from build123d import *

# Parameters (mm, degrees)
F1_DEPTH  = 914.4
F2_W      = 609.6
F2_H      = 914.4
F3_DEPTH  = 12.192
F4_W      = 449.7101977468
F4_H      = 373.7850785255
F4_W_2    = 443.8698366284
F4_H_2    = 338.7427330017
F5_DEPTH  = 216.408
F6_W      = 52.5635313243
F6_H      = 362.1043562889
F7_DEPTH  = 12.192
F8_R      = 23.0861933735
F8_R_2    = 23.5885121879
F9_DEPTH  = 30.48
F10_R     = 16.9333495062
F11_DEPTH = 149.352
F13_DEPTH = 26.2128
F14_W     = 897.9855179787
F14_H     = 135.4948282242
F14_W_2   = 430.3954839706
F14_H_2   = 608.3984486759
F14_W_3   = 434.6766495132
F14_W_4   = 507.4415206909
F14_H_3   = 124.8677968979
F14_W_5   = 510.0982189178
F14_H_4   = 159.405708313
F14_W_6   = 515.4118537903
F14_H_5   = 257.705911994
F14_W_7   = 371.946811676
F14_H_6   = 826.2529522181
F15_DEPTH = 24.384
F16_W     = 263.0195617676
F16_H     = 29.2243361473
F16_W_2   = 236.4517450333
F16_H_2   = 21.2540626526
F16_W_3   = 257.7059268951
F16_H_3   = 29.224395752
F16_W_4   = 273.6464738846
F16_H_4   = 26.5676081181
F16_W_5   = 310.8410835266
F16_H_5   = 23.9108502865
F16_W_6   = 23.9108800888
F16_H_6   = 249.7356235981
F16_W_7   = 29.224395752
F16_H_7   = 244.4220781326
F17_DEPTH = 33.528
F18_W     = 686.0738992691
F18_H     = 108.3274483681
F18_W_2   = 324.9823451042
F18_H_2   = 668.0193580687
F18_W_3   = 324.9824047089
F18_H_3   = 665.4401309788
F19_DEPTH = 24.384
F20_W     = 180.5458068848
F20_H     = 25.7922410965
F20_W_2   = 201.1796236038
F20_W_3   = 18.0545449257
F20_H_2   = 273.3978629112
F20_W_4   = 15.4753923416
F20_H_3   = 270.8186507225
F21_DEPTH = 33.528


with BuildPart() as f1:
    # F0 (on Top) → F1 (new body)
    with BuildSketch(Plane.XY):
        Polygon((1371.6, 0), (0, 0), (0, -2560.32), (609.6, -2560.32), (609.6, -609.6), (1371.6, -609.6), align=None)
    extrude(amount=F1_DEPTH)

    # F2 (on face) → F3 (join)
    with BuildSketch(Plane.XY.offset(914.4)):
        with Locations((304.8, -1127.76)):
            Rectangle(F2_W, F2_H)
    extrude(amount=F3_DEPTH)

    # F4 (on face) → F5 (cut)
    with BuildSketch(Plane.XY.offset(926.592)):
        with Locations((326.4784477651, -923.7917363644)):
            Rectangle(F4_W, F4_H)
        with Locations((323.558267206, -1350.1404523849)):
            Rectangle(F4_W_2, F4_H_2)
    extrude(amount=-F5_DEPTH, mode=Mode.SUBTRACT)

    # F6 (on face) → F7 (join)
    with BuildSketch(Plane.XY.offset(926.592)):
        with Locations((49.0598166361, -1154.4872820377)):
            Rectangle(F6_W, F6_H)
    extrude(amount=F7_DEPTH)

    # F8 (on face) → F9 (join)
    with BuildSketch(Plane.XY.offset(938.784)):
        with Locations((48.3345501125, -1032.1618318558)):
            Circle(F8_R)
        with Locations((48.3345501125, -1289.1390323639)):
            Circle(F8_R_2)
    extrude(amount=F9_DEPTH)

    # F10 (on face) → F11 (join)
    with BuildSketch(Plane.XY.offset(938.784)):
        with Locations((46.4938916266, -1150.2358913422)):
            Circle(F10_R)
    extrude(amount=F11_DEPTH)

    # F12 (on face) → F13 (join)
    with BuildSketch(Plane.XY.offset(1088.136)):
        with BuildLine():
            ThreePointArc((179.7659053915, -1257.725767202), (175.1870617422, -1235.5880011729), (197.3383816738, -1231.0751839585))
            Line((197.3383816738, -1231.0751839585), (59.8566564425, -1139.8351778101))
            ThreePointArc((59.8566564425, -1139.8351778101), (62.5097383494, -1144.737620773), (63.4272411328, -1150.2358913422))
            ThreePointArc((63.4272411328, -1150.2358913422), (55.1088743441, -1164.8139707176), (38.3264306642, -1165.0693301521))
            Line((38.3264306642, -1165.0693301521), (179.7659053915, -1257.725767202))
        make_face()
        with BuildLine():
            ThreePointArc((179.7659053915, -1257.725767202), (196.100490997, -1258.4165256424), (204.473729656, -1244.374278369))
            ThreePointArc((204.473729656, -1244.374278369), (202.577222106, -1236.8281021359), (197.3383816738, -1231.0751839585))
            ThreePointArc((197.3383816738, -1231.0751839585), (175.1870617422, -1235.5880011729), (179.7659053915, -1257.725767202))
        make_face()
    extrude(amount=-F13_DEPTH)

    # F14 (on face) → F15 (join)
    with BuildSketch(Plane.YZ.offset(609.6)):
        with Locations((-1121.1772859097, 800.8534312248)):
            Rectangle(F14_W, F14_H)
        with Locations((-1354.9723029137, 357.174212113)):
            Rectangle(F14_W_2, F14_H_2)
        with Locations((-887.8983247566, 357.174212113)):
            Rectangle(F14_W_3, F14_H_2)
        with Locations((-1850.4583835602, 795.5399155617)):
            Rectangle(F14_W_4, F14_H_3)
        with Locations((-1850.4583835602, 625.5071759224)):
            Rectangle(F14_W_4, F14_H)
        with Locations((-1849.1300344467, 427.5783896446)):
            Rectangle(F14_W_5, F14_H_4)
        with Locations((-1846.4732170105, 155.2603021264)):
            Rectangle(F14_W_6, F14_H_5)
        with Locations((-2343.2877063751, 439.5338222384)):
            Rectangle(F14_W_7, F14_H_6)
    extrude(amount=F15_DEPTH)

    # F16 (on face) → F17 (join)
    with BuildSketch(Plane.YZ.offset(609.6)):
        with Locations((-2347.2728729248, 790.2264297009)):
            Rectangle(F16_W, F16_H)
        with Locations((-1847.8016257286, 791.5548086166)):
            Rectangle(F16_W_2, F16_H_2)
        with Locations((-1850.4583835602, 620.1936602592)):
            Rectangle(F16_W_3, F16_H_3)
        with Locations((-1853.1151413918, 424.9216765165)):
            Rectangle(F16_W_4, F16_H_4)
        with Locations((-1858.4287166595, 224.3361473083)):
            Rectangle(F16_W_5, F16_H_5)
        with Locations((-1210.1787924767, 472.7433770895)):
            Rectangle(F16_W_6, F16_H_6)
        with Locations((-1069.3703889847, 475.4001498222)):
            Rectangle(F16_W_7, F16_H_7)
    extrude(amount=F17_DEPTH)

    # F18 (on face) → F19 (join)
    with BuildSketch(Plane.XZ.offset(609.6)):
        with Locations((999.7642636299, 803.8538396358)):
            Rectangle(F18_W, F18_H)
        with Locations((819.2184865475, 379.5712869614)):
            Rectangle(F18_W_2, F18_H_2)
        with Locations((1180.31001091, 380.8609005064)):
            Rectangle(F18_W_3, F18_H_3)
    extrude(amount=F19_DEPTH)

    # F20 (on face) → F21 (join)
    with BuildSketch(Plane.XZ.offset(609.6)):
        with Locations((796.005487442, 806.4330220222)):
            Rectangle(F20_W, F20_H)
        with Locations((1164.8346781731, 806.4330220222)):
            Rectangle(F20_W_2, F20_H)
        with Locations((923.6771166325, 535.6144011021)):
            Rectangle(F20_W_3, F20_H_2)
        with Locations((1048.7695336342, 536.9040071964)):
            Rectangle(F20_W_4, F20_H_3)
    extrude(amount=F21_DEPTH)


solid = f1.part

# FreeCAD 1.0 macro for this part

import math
import FreeCAD as App
import Part
import Sketcher
from FreeCAD import Vector
Q = App.Units.Quantity

doc = App.newDocument("Part")
body = doc.addObject("PartDesign::Body", "Body")

# Sketch on XY plane
sketch1 = body.newObject("Sketcher::SketchObject", "Sketch")
sketch1.AttachmentSupport = (doc.getObject("XY_Plane"), [""])
sketch1.MapMode = "FlatFace"
sketch1.addGeometry(Part.LineSegment(Vector(1371.6, 0, 0), Vector(0, 0, 0)), False)
sketch1.addGeometry(Part.LineSegment(Vector(0, 0, 0), Vector(0, -2560.32, 0)), False)
sketch1.addGeometry(Part.LineSegment(Vector(0, -2560.32, 0), Vector(609.6, -2560.32, 0)), False)
sketch1.addGeometry(Part.LineSegment(Vector(609.6, -2560.32, 0), Vector(609.6, -609.6, 0)), False)
sketch1.addGeometry(Part.LineSegment(Vector(609.6, -609.6, 0), Vector(1371.6, -609.6, 0)), False)
sketch1.addGeometry(Part.LineSegment(Vector(1371.6, -609.6, 0), Vector(1371.6, 0, 0)), False)
sketch1.addConstraint(Sketcher.Constraint("Coincident", 0, 2, 1, 1))
sketch1.addConstraint(Sketcher.Constraint("Coincident", 1, 2, 2, 1))
sketch1.addConstraint(Sketcher.Constraint("Coincident", 2, 2, 3, 1))
sketch1.addConstraint(Sketcher.Constraint("Coincident", 3, 2, 4, 1))
sketch1.addConstraint(Sketcher.Constraint("Coincident", 4, 2, 5, 1))
sketch1.addConstraint(Sketcher.Constraint("Coincident", 5, 2, 0, 1))
sketch1.addConstraint(Sketcher.Constraint("Horizontal", 0))
sketch1.addConstraint(Sketcher.Constraint("Vertical", 1))
sketch1.addConstraint(Sketcher.Constraint("Horizontal", 2))
sketch1.addConstraint(Sketcher.Constraint("Vertical", 3))
sketch1.addConstraint(Sketcher.Constraint("Horizontal", 4))
sketch1.addConstraint(Sketcher.Constraint("Vertical", 5))
sketch1.addConstraint(Sketcher.Constraint("Coincident", 0, 2, -1, 1))
sketch1.addConstraint(Sketcher.Constraint("Equal", 2, 5))
sketch1.addConstraint(Sketcher.Constraint("DistanceX", 0, 2, 0, 1, Q("54 in")))
sketch1.addConstraint(Sketcher.Constraint("DistanceX", 2, 1, 2, 2, Q("24 in")))
sketch1.addConstraint(Sketcher.Constraint("DistanceY", 1, 2, 1, 1, Q("100.8 in")))
pad1 = body.newObject("PartDesign::Pad", "Pad")
pad1.Profile = sketch1
pad1.Length = Q("36 in")

# Sketch on XY plane
sketch2 = body.newObject("Sketcher::SketchObject", "Sketch001")
sketch2.AttachmentSupport = (doc.getObject("XY_Plane"), [""])
sketch2.MapMode = "FlatFace"
sketch2.AttachmentOffset = App.Placement(Vector(0, 0, 36 * 25.4), App.Rotation())
sketch2.addGeometry(Part.LineSegment(Vector(0, -670.56, 0), Vector(0, -1584.96, 0)), False)
sketch2.addGeometry(Part.LineSegment(Vector(0, -1584.96, 0), Vector(609.6, -1584.96, 0)), False)
sketch2.addGeometry(Part.LineSegment(Vector(609.6, -1584.96, 0), Vector(609.6, -670.56, 0)), False)
sketch2.addGeometry(Part.LineSegment(Vector(609.6, -670.56, 0), Vector(0, -670.56, 0)), False)
sketch2.addConstraint(Sketcher.Constraint("Coincident", 0, 2, 1, 1))
sketch2.addConstraint(Sketcher.Constraint("Coincident", 1, 2, 2, 1))
sketch2.addConstraint(Sketcher.Constraint("Coincident", 2, 2, 3, 1))
sketch2.addConstraint(Sketcher.Constraint("Coincident", 3, 2, 0, 1))
sketch2.addConstraint(Sketcher.Constraint("Vertical", 0))
sketch2.addConstraint(Sketcher.Constraint("Horizontal", 1))
sketch2.addConstraint(Sketcher.Constraint("Vertical", 2))
sketch2.addConstraint(Sketcher.Constraint("Horizontal", 3))
sketch2.addConstraint(Sketcher.Constraint("PointOnObject", 0, 2, -2))
sketch2.addConstraint(Sketcher.Constraint("DistanceX", 1, 1, 1, 2, Q("24 in")))
sketch2.addConstraint(Sketcher.Constraint("DistanceY", 0, 2, 0, 1, Q("36 in")))
sketch2.addConstraint(Sketcher.Constraint("DistanceY", 0, 2, -1, 1, Q("62.4 in")))
pad2 = body.newObject("PartDesign::Pad", "Pad001")
pad2.Profile = sketch2
pad2.Length = Q("0.48 in")

# Sketch on XY plane
sketch3 = body.newObject("Sketcher::SketchObject", "Sketch002")
sketch3.AttachmentSupport = (doc.getObject("XY_Plane"), [""])
sketch3.MapMode = "FlatFace"
sketch3.AttachmentOffset = App.Placement(Vector(0, 0, 36.48 * 25.4), App.Rotation())
sketch3.addGeometry(Part.LineSegment(Vector(101.623349, -736.899197, 0), Vector(101.623349, -1110.684276, 0)), False)
sketch3.addGeometry(Part.LineSegment(Vector(101.623349, -1110.684276, 0), Vector(551.333547, -1110.684276, 0)), False)
sketch3.addGeometry(Part.LineSegment(Vector(551.333547, -1110.684276, 0), Vector(551.333547, -736.899197, 0)), False)
sketch3.addGeometry(Part.LineSegment(Vector(551.333547, -736.899197, 0), Vector(101.623349, -736.899197, 0)), False)
sketch3.addGeometry(Part.LineSegment(Vector(101.623349, -1180.769086, 0), Vector(101.623349, -1519.511819, 0)), False)
sketch3.addGeometry(Part.LineSegment(Vector(101.623349, -1519.511819, 0), Vector(545.493186, -1519.511819, 0)), False)
sketch3.addGeometry(Part.LineSegment(Vector(545.493186, -1519.511819, 0), Vector(545.493186, -1180.769086, 0)), False)
sketch3.addGeometry(Part.LineSegment(Vector(545.493186, -1180.769086, 0), Vector(101.623349, -1180.769086, 0)), False)
sketch3.addConstraint(Sketcher.Constraint("Coincident", 0, 2, 1, 1))
sketch3.addConstraint(Sketcher.Constraint("Coincident", 1, 2, 2, 1))
sketch3.addConstraint(Sketcher.Constraint("Coincident", 2, 2, 3, 1))
sketch3.addConstraint(Sketcher.Constraint("Coincident", 3, 2, 0, 1))
sketch3.addConstraint(Sketcher.Constraint("Coincident", 4, 2, 5, 1))
sketch3.addConstraint(Sketcher.Constraint("Coincident", 5, 2, 6, 1))
sketch3.addConstraint(Sketcher.Constraint("Coincident", 6, 2, 7, 1))
sketch3.addConstraint(Sketcher.Constraint("Coincident", 7, 2, 4, 1))
sketch3.addConstraint(Sketcher.Constraint("Vertical", 0))
sketch3.addConstraint(Sketcher.Constraint("Horizontal", 1))
sketch3.addConstraint(Sketcher.Constraint("Vertical", 2))
sketch3.addConstraint(Sketcher.Constraint("Horizontal", 3))
sketch3.addConstraint(Sketcher.Constraint("Vertical", 4))
sketch3.addConstraint(Sketcher.Constraint("Horizontal", 5))
sketch3.addConstraint(Sketcher.Constraint("Vertical", 6))
sketch3.addConstraint(Sketcher.Constraint("Horizontal", 7))
sketch3.addConstraint(Sketcher.Constraint("Vertical", 3, 2, 4, 2))
sketch3.addConstraint(Sketcher.Constraint("DistanceY", 4, 2, -1, 1, Q("59.8233 in")))
sketch3.addConstraint(Sketcher.Constraint("DistanceY", 0, 2, 0, 1, 373.785079))
sketch3.addConstraint(Sketcher.Constraint("DistanceX", 1, 1, 1, 2, 449.710198))
sketch3.addConstraint(Sketcher.Constraint("DistanceX", 5, 1, 5, 2, 443.869837))
sketch3.addConstraint(Sketcher.Constraint("DistanceY", 4, 2, 4, 1, 338.742733))
sketch3.addConstraint(Sketcher.Constraint("DistanceX", -1, 1, 0, 2, 101.623349))
sketch3.addConstraint(Sketcher.Constraint("DistanceY", 4, 2, 3, 2, 782.612622))
pocket1 = body.newObject("PartDesign::Pocket", "Pocket")
pocket1.Profile = sketch3
pocket1.Length = Q("8.52 in")

# Sketch on XY plane
sketch4 = body.newObject("Sketcher::SketchObject", "Sketch003")
sketch4.AttachmentSupport = (doc.getObject("XY_Plane"), [""])
sketch4.MapMode = "FlatFace"
sketch4.AttachmentOffset = App.Placement(Vector(0, 0, 36.48 * 25.4), App.Rotation())
sketch4.addGeometry(Part.LineSegment(Vector(22.778051, -973.435104, 0), Vector(22.778051, -1335.53946, 0)), False)
sketch4.addGeometry(Part.LineSegment(Vector(22.778051, -1335.53946, 0), Vector(75.341582, -1335.53946, 0)), False)
sketch4.addGeometry(Part.LineSegment(Vector(75.341582, -1335.53946, 0), Vector(75.341582, -973.435104, 0)), False)
sketch4.addGeometry(Part.LineSegment(Vector(75.341582, -973.435104, 0), Vector(22.778051, -973.435104, 0)), False)
sketch4.addConstraint(Sketcher.Constraint("Coincident", 0, 2, 1, 1))
sketch4.addConstraint(Sketcher.Constraint("Coincident", 1, 2, 2, 1))
sketch4.addConstraint(Sketcher.Constraint("Coincident", 2, 2, 3, 1))
sketch4.addConstraint(Sketcher.Constraint("Coincident", 3, 2, 0, 1))
sketch4.addConstraint(Sketcher.Constraint("Vertical", 0))
sketch4.addConstraint(Sketcher.Constraint("Horizontal", 1))
sketch4.addConstraint(Sketcher.Constraint("Vertical", 2))
sketch4.addConstraint(Sketcher.Constraint("Horizontal", 3))
sketch4.addConstraint(Sketcher.Constraint("DistanceX", 1, 1, 1, 2, 52.563531))
sketch4.addConstraint(Sketcher.Constraint("DistanceY", 0, 2, 0, 1, 362.104356))
sketch4.addConstraint(Sketcher.Constraint("DistanceX", -1, 1, 0, 2, 22.778051))
sketch4.addConstraint(Sketcher.Constraint("DistanceY", 0, 2, -1, 1, 1335.53946))
pad3 = body.newObject("PartDesign::Pad", "Pad002")
pad3.Profile = sketch4
pad3.Length = Q("0.48 in")

# Sketch on XY plane
sketch5 = body.newObject("Sketcher::SketchObject", "Sketch004")
sketch5.AttachmentSupport = (doc.getObject("XY_Plane"), [""])
sketch5.MapMode = "FlatFace"
sketch5.AttachmentOffset = App.Placement(Vector(0, 0, 36.96 * 25.4), App.Rotation())
sketch5.addGeometry(Part.Circle(Vector(48.33455, -1032.161832, 0), Vector(0, 0, 1), 23.086193), False)
sketch5.addGeometry(Part.Circle(Vector(48.33455, -1289.139032, 0), Vector(0, 0, 1), 23.588512), False)
sketch5.addConstraint(Sketcher.Constraint("Vertical", 0, 3, 1, 3))
sketch5.addConstraint(Sketcher.Constraint("Diameter", 0, 46.172387))
sketch5.addConstraint(Sketcher.Constraint("Diameter", 1, 47.177024))
sketch5.addConstraint(Sketcher.Constraint("DistanceY", 1, 3, 0, 3, 256.977201))
sketch5.addConstraint(Sketcher.Constraint("DistanceX", -1, 1, 0, 3, 48.33455))
sketch5.addConstraint(Sketcher.Constraint("DistanceY", 0, 3, -1, 1, 1032.161832))
pad4 = body.newObject("PartDesign::Pad", "Pad003")
pad4.Profile = sketch5
pad4.Length = Q("1.2 in")

# Sketch on XY plane
sketch6 = body.newObject("Sketcher::SketchObject", "Sketch005")
sketch6.AttachmentSupport = (doc.getObject("XY_Plane"), [""])
sketch6.MapMode = "FlatFace"
sketch6.AttachmentOffset = App.Placement(Vector(0, 0, 36.96 * 25.4), App.Rotation())
sketch6.addGeometry(Part.Circle(Vector(46.493892, -1150.235891, 0), Vector(0, 0, 1), 16.93335), False)
sketch6.addConstraint(Sketcher.Constraint("Diameter", 0, 33.866699))
sketch6.addConstraint(Sketcher.Constraint("DistanceX", -1, 1, 0, 3, 46.493892))
sketch6.addConstraint(Sketcher.Constraint("DistanceY", 0, 3, -1, 1, 1150.235891))
pad5 = body.newObject("PartDesign::Pad", "Pad004")
pad5.Profile = sketch6
pad5.Length = Q("5.88 in")

# Sketch on XY plane
sketch7 = body.newObject("Sketcher::SketchObject", "Sketch006")
sketch7.AttachmentSupport = (doc.getObject("XY_Plane"), [""])
sketch7.MapMode = "FlatFace"
sketch7.AttachmentOffset = App.Placement(Vector(0, 0, 42.84 * 25.4), App.Rotation())
sketch7.addGeometry(Part.LineSegment(Vector(197.338382, -1231.075184, 0), Vector(59.856656, -1139.835178, 0)), False)
sketch7.addGeometry(Part.ArcOfCircle(Part.Circle(Vector(46.493892, -1150.235891, 0), Vector(0, 0, 1), 16.93335), math.radians(0), math.radians(37.894887)), False)
sketch7.addGeometry(Part.ArcOfCircle(Part.Circle(Vector(46.493892, -1150.235891, 0), Vector(0, 0, 1), 16.93335), math.radians(-118.837683), math.radians(0)), False)
sketch7.addGeometry(Part.LineSegment(Vector(38.326431, -1165.06933, 0), Vector(179.765905, -1257.725767, 0)), False)
sketch7.addGeometry(Part.ArcOfCircle(Part.Circle(Vector(188.512413, -1244.374278, 0), Vector(0, 0, 1), 15.961317), math.radians(-123.228649), math.radians(0)), False)
sketch7.addGeometry(Part.ArcOfCircle(Part.Circle(Vector(188.512413, -1244.374278, 0), Vector(0, 0, 1), 15.961317), math.radians(0), math.radians(56.429684)), False)
sketch7.addConstraint(Sketcher.Constraint("Coincident", 0, 2, 1, 2))
sketch7.addConstraint(Sketcher.Constraint("Tangent", 1, 1, 2, 2))
sketch7.addConstraint(Sketcher.Constraint("Coincident", 2, 1, 3, 1))
sketch7.addConstraint(Sketcher.Constraint("Tangent", 3, 2, 4, 1))
sketch7.addConstraint(Sketcher.Constraint("Tangent", 4, 2, 5, 1))
sketch7.addConstraint(Sketcher.Constraint("Tangent", 5, 2, 0, 1))
sketch7.addConstraint(Sketcher.Constraint("Equal", 1, 2))
sketch7.addConstraint(Sketcher.Constraint("Equal", 4, 5))
sketch7.addConstraint(Sketcher.Constraint("Horizontal", 2, 3, 1, 1))
sketch7.addConstraint(Sketcher.Constraint("Horizontal", 5, 3, 4, 2))
sketch7.addConstraint(Sketcher.Constraint("Radius", 1, 16.93335))
sketch7.addConstraint(Sketcher.Constraint("Radius", 4, 15.961317))
sketch7.addConstraint(Sketcher.Constraint("DistanceY", 4, 3, 0, 2, 104.539101))
sketch7.addConstraint(Sketcher.Constraint("Distance", 0, 165.00292))
sketch7.addConstraint(Sketcher.Constraint("DistanceX", -1, 1, 1, 3, 46.493892))
sketch7.addConstraint(Sketcher.Constraint("DistanceY", 1, 3, -1, 1, 1150.235891))
sketch7.addConstraint(Sketcher.Constraint("DistanceY", 4, 3, -1, 1, 1244.374278))
sketch7.addConstraint(Sketcher.Constraint("DistanceX", -1, 1, 2, 1, 38.326431))
pad6 = body.newObject("PartDesign::Pad", "Pad005")
pad6.Profile = sketch7
pad6.Length = Q("1.032 in")
pad6.Reversed = True

# Sketch on YZ plane
sketch8 = body.newObject("Sketcher::SketchObject", "Sketch007")
sketch8.AttachmentSupport = (doc.getObject("YZ_Plane"), [""])
sketch8.MapMode = "FlatFace"
sketch8.AttachmentOffset = App.Placement(Vector(0, 0, 24 * 25.4), App.Rotation())
sketch8.addGeometry(Part.LineSegment(Vector(-1570.170045, 868.600845, 0), Vector(-1570.170045, 733.106017, 0)), False)
sketch8.addGeometry(Part.LineSegment(Vector(-1570.170045, 733.106017, 0), Vector(-672.184527, 733.106017, 0)), False)
sketch8.addGeometry(Part.LineSegment(Vector(-672.184527, 733.106017, 0), Vector(-672.184527, 868.600845, 0)), False)
sketch8.addGeometry(Part.LineSegment(Vector(-672.184527, 868.600845, 0), Vector(-1570.170045, 868.600845, 0)), False)
sketch8.addGeometry(Part.LineSegment(Vector(-1570.170045, 661.373436, 0), Vector(-1570.170045, 52.974988, 0)), False)
sketch8.addGeometry(Part.LineSegment(Vector(-1570.170045, 52.974988, 0), Vector(-1139.774561, 52.974988, 0)), False)
sketch8.addGeometry(Part.LineSegment(Vector(-1139.774561, 52.974988, 0), Vector(-1139.774561, 661.373436, 0)), False)
sketch8.addGeometry(Part.LineSegment(Vector(-1139.774561, 661.373436, 0), Vector(-1570.170045, 661.373436, 0)), False)
sketch8.addGeometry(Part.LineSegment(Vector(-1105.23665, 661.373436, 0), Vector(-1105.23665, 52.974988, 0)), False)
sketch8.addGeometry(Part.LineSegment(Vector(-1105.23665, 52.974988, 0), Vector(-670.56, 52.974988, 0)), False)
sketch8.addGeometry(Part.LineSegment(Vector(-670.56, 52.974988, 0), Vector(-670.56, 661.373436, 0)), False)
sketch8.addGeometry(Part.LineSegment(Vector(-670.56, 661.373436, 0), Vector(-1105.23665, 661.373436, 0)), False)
sketch8.addGeometry(Part.LineSegment(Vector(-2104.179144, 857.973814, 0), Vector(-2104.179144, 733.106017, 0)), False)
sketch8.addGeometry(Part.LineSegment(Vector(-2104.179144, 733.106017, 0), Vector(-1596.737623, 733.106017, 0)), False)
sketch8.addGeometry(Part.LineSegment(Vector(-1596.737623, 733.106017, 0), Vector(-1596.737623, 857.973814, 0)), False)
sketch8.addGeometry(Part.LineSegment(Vector(-1596.737623, 857.973814, 0), Vector(-2104.179144, 857.973814, 0)), False)
sketch8.addGeometry(Part.LineSegment(Vector(-2104.179144, 693.25459, 0), Vector(-2104.179144, 557.759762, 0)), False)
sketch8.addGeometry(Part.LineSegment(Vector(-2104.179144, 557.759762, 0), Vector(-1596.737623, 557.759762, 0)), False)
sketch8.addGeometry(Part.LineSegment(Vector(-1596.737623, 557.759762, 0), Vector(-1596.737623, 693.25459, 0)), False)
sketch8.addGeometry(Part.LineSegment(Vector(-1596.737623, 693.25459, 0), Vector(-2104.179144, 693.25459, 0)), False)
sketch8.addGeometry(Part.LineSegment(Vector(-2104.179144, 507.281244, 0), Vector(-2104.179144, 347.875535, 0)), False)
sketch8.addGeometry(Part.LineSegment(Vector(-2104.179144, 347.875535, 0), Vector(-1594.080925, 347.875535, 0)), False)
sketch8.addGeometry(Part.LineSegment(Vector(-1594.080925, 347.875535, 0), Vector(-1594.080925, 507.281244, 0)), False)
sketch8.addGeometry(Part.LineSegment(Vector(-1594.080925, 507.281244, 0), Vector(-2104.179144, 507.281244, 0)), False)
sketch8.addGeometry(Part.LineSegment(Vector(-2104.179144, 284.113258, 0), Vector(-2104.179144, 26.407346, 0)), False)
sketch8.addGeometry(Part.LineSegment(Vector(-2104.179144, 26.407346, 0), Vector(-1588.76729, 26.407346, 0)), False)
sketch8.addGeometry(Part.LineSegment(Vector(-1588.76729, 26.407346, 0), Vector(-1588.76729, 284.113258, 0)), False)
sketch8.addGeometry(Part.LineSegment(Vector(-1588.76729, 284.113258, 0), Vector(-2104.179144, 284.113258, 0)), False)
sketch8.addGeometry(Part.LineSegment(Vector(-2529.261112, 852.660298, 0), Vector(-2529.261112, 26.407346, 0)), False)
sketch8.addGeometry(Part.LineSegment(Vector(-2529.261112, 26.407346, 0), Vector(-2157.314301, 26.407346, 0)), False)
sketch8.addGeometry(Part.LineSegment(Vector(-2157.314301, 26.407346, 0), Vector(-2157.314301, 852.660298, 0)), False)
sketch8.addGeometry(Part.LineSegment(Vector(-2157.314301, 852.660298, 0), Vector(-2529.261112, 852.660298, 0)), False)
sketch8.addConstraint(Sketcher.Constraint("Coincident", 0, 2, 1, 1))
sketch8.addConstraint(Sketcher.Constraint("Coincident", 1, 2, 2, 1))
sketch8.addConstraint(Sketcher.Constraint("Coincident", 2, 2, 3, 1))
sketch8.addConstraint(Sketcher.Constraint("Coincident", 3, 2, 0, 1))
sketch8.addConstraint(Sketcher.Constraint("Coincident", 4, 2, 5, 1))
sketch8.addConstraint(Sketcher.Constraint("Coincident", 5, 2, 6, 1))
sketch8.addConstraint(Sketcher.Constraint("Coincident", 6, 2, 7, 1))
sketch8.addConstraint(Sketcher.Constraint("Coincident", 7, 2, 4, 1))
sketch8.addConstraint(Sketcher.Constraint("Coincident", 8, 2, 9, 1))
sketch8.addConstraint(Sketcher.Constraint("Coincident", 9, 2, 10, 1))
sketch8.addConstraint(Sketcher.Constraint("Coincident", 10, 2, 11, 1))
sketch8.addConstraint(Sketcher.Constraint("Coincident", 11, 2, 8, 1))
sketch8.addConstraint(Sketcher.Constraint("Coincident", 12, 2, 13, 1))
sketch8.addConstraint(Sketcher.Constraint("Coincident", 13, 2, 14, 1))
sketch8.addConstraint(Sketcher.Constraint("Coincident", 14, 2, 15, 1))
sketch8.addConstraint(Sketcher.Constraint("Coincident", 15, 2, 12, 1))
sketch8.addConstraint(Sketcher.Constraint("Coincident", 16, 2, 17, 1))
sketch8.addConstraint(Sketcher.Constraint("Coincident", 17, 2, 18, 1))
sketch8.addConstraint(Sketcher.Constraint("Coincident", 18, 2, 19, 1))
sketch8.addConstraint(Sketcher.Constraint("Coincident", 19, 2, 16, 1))
sketch8.addConstraint(Sketcher.Constraint("Coincident", 20, 2, 21, 1))
sketch8.addConstraint(Sketcher.Constraint("Coincident", 21, 2, 22, 1))
sketch8.addConstraint(Sketcher.Constraint("Coincident", 22, 2, 23, 1))
sketch8.addConstraint(Sketcher.Constraint("Coincident", 23, 2, 20, 1))
sketch8.addConstraint(Sketcher.Constraint("Coincident", 24, 2, 25, 1))
sketch8.addConstraint(Sketcher.Constraint("Coincident", 25, 2, 26, 1))
sketch8.addConstraint(Sketcher.Constraint("Coincident", 26, 2, 27, 1))
sketch8.addConstraint(Sketcher.Constraint("Coincident", 27, 2, 24, 1))
sketch8.addConstraint(Sketcher.Constraint("Coincident", 28, 2, 29, 1))
sketch8.addConstraint(Sketcher.Constraint("Coincident", 29, 2, 30, 1))
sketch8.addConstraint(Sketcher.Constraint("Coincident", 30, 2, 31, 1))
sketch8.addConstraint(Sketcher.Constraint("Coincident", 31, 2, 28, 1))
sketch8.addConstraint(Sketcher.Constraint("Vertical", 0))
sketch8.addConstraint(Sketcher.Constraint("Horizontal", 1))
sketch8.addConstraint(Sketcher.Constraint("Vertical", 2))
sketch8.addConstraint(Sketcher.Constraint("Horizontal", 3))
sketch8.addConstraint(Sketcher.Constraint("Vertical", 4))
sketch8.addConstraint(Sketcher.Constraint("Horizontal", 5))
sketch8.addConstraint(Sketcher.Constraint("Vertical", 6))
sketch8.addConstraint(Sketcher.Constraint("Horizontal", 7))
sketch8.addConstraint(Sketcher.Constraint("Vertical", 8))
sketch8.addConstraint(Sketcher.Constraint("Horizontal", 9))
sketch8.addConstraint(Sketcher.Constraint("Vertical", 10))
sketch8.addConstraint(Sketcher.Constraint("Horizontal", 11))
sketch8.addConstraint(Sketcher.Constraint("Vertical", 12))
sketch8.addConstraint(Sketcher.Constraint("Horizontal", 13))
sketch8.addConstraint(Sketcher.Constraint("Vertical", 14))
sketch8.addConstraint(Sketcher.Constraint("Horizontal", 15))
sketch8.addConstraint(Sketcher.Constraint("Vertical", 16))
sketch8.addConstraint(Sketcher.Constraint("Horizontal", 17))
sketch8.addConstraint(Sketcher.Constraint("Vertical", 18))
sketch8.addConstraint(Sketcher.Constraint("Horizontal", 19))
sketch8.addConstraint(Sketcher.Constraint("Vertical", 20))
sketch8.addConstraint(Sketcher.Constraint("Horizontal", 21))
sketch8.addConstraint(Sketcher.Constraint("Vertical", 22))
sketch8.addConstraint(Sketcher.Constraint("Horizontal", 23))
sketch8.addConstraint(Sketcher.Constraint("Vertical", 24))
sketch8.addConstraint(Sketcher.Constraint("Horizontal", 25))
sketch8.addConstraint(Sketcher.Constraint("Vertical", 26))
sketch8.addConstraint(Sketcher.Constraint("Horizontal", 27))
sketch8.addConstraint(Sketcher.Constraint("Vertical", 28))
sketch8.addConstraint(Sketcher.Constraint("Horizontal", 29))
sketch8.addConstraint(Sketcher.Constraint("Vertical", 30))
sketch8.addConstraint(Sketcher.Constraint("Horizontal", 31))
sketch8.addConstraint(Sketcher.Constraint("Horizontal", 5, 2, 8, 2))
sketch8.addConstraint(Sketcher.Constraint("Horizontal", 7, 2, 10, 2))
sketch8.addConstraint(Sketcher.Constraint("Horizontal", 1, 2, 12, 2))
sketch8.addConstraint(Sketcher.Constraint("Horizontal", 25, 2, 28, 2))
sketch8.addConstraint(Sketcher.Constraint("Vertical", 3, 2, 4, 2))
sketch8.addConstraint(Sketcher.Constraint("Vertical", 15, 2, 16, 2))
sketch8.addConstraint(Sketcher.Constraint("Vertical", 14, 2, 17, 2))
sketch8.addConstraint(Sketcher.Constraint("Vertical", 19, 2, 20, 2))
sketch8.addConstraint(Sketcher.Constraint("Vertical", 23, 2, 24, 2))
sketch8.addConstraint(Sketcher.Constraint("Equal", 2, 16))
sketch8.addConstraint(Sketcher.Constraint("DistanceX", 9, 2, -1, 1, Q("26.4 in")))
sketch8.addConstraint(Sketcher.Constraint("DistanceX", 9, 1, 9, 2, 434.67665))
sketch8.addConstraint(Sketcher.Constraint("DistanceX", 13, 1, 13, 2, 507.441521))
sketch8.addConstraint(Sketcher.Constraint("DistanceX", 21, 1, 21, 2, 510.098219))
sketch8.addConstraint(Sketcher.Constraint("DistanceX", 29, 1, 29, 2, 371.946812))
sketch8.addConstraint(Sketcher.Constraint("DistanceY", 0, 2, 0, 1, 135.494828))
sketch8.addConstraint(Sketcher.Constraint("DistanceY", 4, 2, 4, 1, 608.398449))
sketch8.addConstraint(Sketcher.Constraint("DistanceY", 20, 2, 20, 1, 159.405708))
sketch8.addConstraint(Sketcher.Constraint("DistanceY", 24, 2, 24, 1, 257.705912))
sketch8.addConstraint(Sketcher.Constraint("DistanceX", 29, 2, -1, 1, 2157.314301))
sketch8.addConstraint(Sketcher.Constraint("DistanceY", -1, 1, 30, 2, 852.660298))
sketch8.addConstraint(Sketcher.Constraint("DistanceX", 12, 2, 0, 2, 534.009099))
sketch8.addConstraint(Sketcher.Constraint("DistanceY", 21, 2, 7, 2, 313.497901))
sketch8.addConstraint(Sketcher.Constraint("DistanceX", 1, 1, 1, 2, 897.985518))
sketch8.addConstraint(Sketcher.Constraint("DistanceX", 5, 1, 5, 2, 430.395484))
sketch8.addConstraint(Sketcher.Constraint("DistanceX", 25, 1, 25, 2, 515.411854))
sketch8.addConstraint(Sketcher.Constraint("DistanceY", 12, 2, 12, 1, 124.867797))
sketch8.addConstraint(Sketcher.Constraint("DistanceY", 28, 2, 28, 1, 826.252952))
sketch8.addConstraint(Sketcher.Constraint("DistanceX", 5, 2, -1, 1, 1139.774561))
sketch8.addConstraint(Sketcher.Constraint("DistanceY", -1, 1, 16, 2, 557.759762))
sketch8.addConstraint(Sketcher.Constraint("DistanceY", 4, 2, 0, 2, 680.131029))
sketch8.addConstraint(Sketcher.Constraint("DistanceY", 22, 2, 17, 2, 50.478518))
pad7 = body.newObject("PartDesign::Pad", "Pad006")
pad7.Profile = sketch8
pad7.Length = Q("0.96 in")

# Sketch on YZ plane
sketch9 = body.newObject("Sketcher::SketchObject", "Sketch008")
sketch9.AttachmentSupport = (doc.getObject("YZ_Plane"), [""])
sketch9.MapMode = "FlatFace"
sketch9.AttachmentOffset = App.Placement(Vector(0, 0, 24 * 25.4), App.Rotation())
sketch9.addGeometry(Part.LineSegment(Vector(-2478.782654, 804.838598, 0), Vector(-2478.782654, 775.614262, 0)), False)
sketch9.addGeometry(Part.LineSegment(Vector(-2478.782654, 775.614262, 0), Vector(-2215.763092, 775.614262, 0)), False)
sketch9.addGeometry(Part.LineSegment(Vector(-2215.763092, 775.614262, 0), Vector(-2215.763092, 804.838598, 0)), False)
sketch9.addGeometry(Part.LineSegment(Vector(-2215.763092, 804.838598, 0), Vector(-2478.782654, 804.838598, 0)), False)
sketch9.addGeometry(Part.LineSegment(Vector(-1966.027498, 802.18184, 0), Vector(-1966.027498, 780.927777, 0)), False)
sketch9.addGeometry(Part.LineSegment(Vector(-1966.027498, 780.927777, 0), Vector(-1729.575753, 780.927777, 0)), False)
sketch9.addGeometry(Part.LineSegment(Vector(-1729.575753, 780.927777, 0), Vector(-1729.575753, 802.18184, 0)), False)
sketch9.addGeometry(Part.LineSegment(Vector(-1729.575753, 802.18184, 0), Vector(-1966.027498, 802.18184, 0)), False)
sketch9.addGeometry(Part.LineSegment(Vector(-1979.311347, 634.805858, 0), Vector(-1979.311347, 605.581462, 0)), False)
sketch9.addGeometry(Part.LineSegment(Vector(-1979.311347, 605.581462, 0), Vector(-1721.60542, 605.581462, 0)), False)
sketch9.addGeometry(Part.LineSegment(Vector(-1721.60542, 605.581462, 0), Vector(-1721.60542, 634.805858, 0)), False)
sketch9.addGeometry(Part.LineSegment(Vector(-1721.60542, 634.805858, 0), Vector(-1979.311347, 634.805858, 0)), False)
sketch9.addGeometry(Part.LineSegment(Vector(-1989.938378, 438.205481, 0), Vector(-1989.938378, 411.637872, 0)), False)
sketch9.addGeometry(Part.LineSegment(Vector(-1989.938378, 411.637872, 0), Vector(-1716.291904, 411.637872, 0)), False)
sketch9.addGeometry(Part.LineSegment(Vector(-1716.291904, 411.637872, 0), Vector(-1716.291904, 438.205481, 0)), False)
sketch9.addGeometry(Part.LineSegment(Vector(-1716.291904, 438.205481, 0), Vector(-1989.938378, 438.205481, 0)), False)
sketch9.addGeometry(Part.LineSegment(Vector(-2013.849258, 236.291572, 0), Vector(-2013.849258, 212.380722, 0)), False)
sketch9.addGeometry(Part.LineSegment(Vector(-2013.849258, 212.380722, 0), Vector(-1703.008175, 212.380722, 0)), False)
sketch9.addGeometry(Part.LineSegment(Vector(-1703.008175, 212.380722, 0), Vector(-1703.008175, 236.291572, 0)), False)
sketch9.addGeometry(Part.LineSegment(Vector(-1703.008175, 236.291572, 0), Vector(-2013.849258, 236.291572, 0)), False)
sketch9.addGeometry(Part.LineSegment(Vector(-1222.134233, 597.611189, 0), Vector(-1222.134233, 347.875565, 0)), False)
sketch9.addGeometry(Part.LineSegment(Vector(-1222.134233, 347.875565, 0), Vector(-1198.223352, 347.875565, 0)), False)
sketch9.addGeometry(Part.LineSegment(Vector(-1198.223352, 347.875565, 0), Vector(-1198.223352, 597.611189, 0)), False)
sketch9.addGeometry(Part.LineSegment(Vector(-1198.223352, 597.611189, 0), Vector(-1222.134233, 597.611189, 0)), False)
sketch9.addGeometry(Part.LineSegment(Vector(-1083.982587, 597.611189, 0), Vector(-1083.982587, 353.189111, 0)), False)
sketch9.addGeometry(Part.LineSegment(Vector(-1083.982587, 353.189111, 0), Vector(-1054.758191, 353.189111, 0)), False)
sketch9.addGeometry(Part.LineSegment(Vector(-1054.758191, 353.189111, 0), Vector(-1054.758191, 597.611189, 0)), False)
sketch9.addGeometry(Part.LineSegment(Vector(-1054.758191, 597.611189, 0), Vector(-1083.982587, 597.611189, 0)), False)
sketch9.addConstraint(Sketcher.Constraint("Coincident", 0, 2, 1, 1))
sketch9.addConstraint(Sketcher.Constraint("Coincident", 1, 2, 2, 1))
sketch9.addConstraint(Sketcher.Constraint("Coincident", 2, 2, 3, 1))
sketch9.addConstraint(Sketcher.Constraint("Coincident", 3, 2, 0, 1))
sketch9.addConstraint(Sketcher.Constraint("Coincident", 4, 2, 5, 1))
sketch9.addConstraint(Sketcher.Constraint("Coincident", 5, 2, 6, 1))
sketch9.addConstraint(Sketcher.Constraint("Coincident", 6, 2, 7, 1))
sketch9.addConstraint(Sketcher.Constraint("Coincident", 7, 2, 4, 1))
sketch9.addConstraint(Sketcher.Constraint("Coincident", 8, 2, 9, 1))
sketch9.addConstraint(Sketcher.Constraint("Coincident", 9, 2, 10, 1))
sketch9.addConstraint(Sketcher.Constraint("Coincident", 10, 2, 11, 1))
sketch9.addConstraint(Sketcher.Constraint("Coincident", 11, 2, 8, 1))
sketch9.addConstraint(Sketcher.Constraint("Coincident", 12, 2, 13, 1))
sketch9.addConstraint(Sketcher.Constraint("Coincident", 13, 2, 14, 1))
sketch9.addConstraint(Sketcher.Constraint("Coincident", 14, 2, 15, 1))
sketch9.addConstraint(Sketcher.Constraint("Coincident", 15, 2, 12, 1))
sketch9.addConstraint(Sketcher.Constraint("Coincident", 16, 2, 17, 1))
sketch9.addConstraint(Sketcher.Constraint("Coincident", 17, 2, 18, 1))
sketch9.addConstraint(Sketcher.Constraint("Coincident", 18, 2, 19, 1))
sketch9.addConstraint(Sketcher.Constraint("Coincident", 19, 2, 16, 1))
sketch9.addConstraint(Sketcher.Constraint("Coincident", 20, 2, 21, 1))
sketch9.addConstraint(Sketcher.Constraint("Coincident", 21, 2, 22, 1))
sketch9.addConstraint(Sketcher.Constraint("Coincident", 22, 2, 23, 1))
sketch9.addConstraint(Sketcher.Constraint("Coincident", 23, 2, 20, 1))
sketch9.addConstraint(Sketcher.Constraint("Coincident", 24, 2, 25, 1))
sketch9.addConstraint(Sketcher.Constraint("Coincident", 25, 2, 26, 1))
sketch9.addConstraint(Sketcher.Constraint("Coincident", 26, 2, 27, 1))
sketch9.addConstraint(Sketcher.Constraint("Coincident", 27, 2, 24, 1))
sketch9.addConstraint(Sketcher.Constraint("Vertical", 0))
sketch9.addConstraint(Sketcher.Constraint("Horizontal", 1))
sketch9.addConstraint(Sketcher.Constraint("Vertical", 2))
sketch9.addConstraint(Sketcher.Constraint("Horizontal", 3))
sketch9.addConstraint(Sketcher.Constraint("Vertical", 4))
sketch9.addConstraint(Sketcher.Constraint("Horizontal", 5))
sketch9.addConstraint(Sketcher.Constraint("Vertical", 6))
sketch9.addConstraint(Sketcher.Constraint("Horizontal", 7))
sketch9.addConstraint(Sketcher.Constraint("Vertical", 8))
sketch9.addConstraint(Sketcher.Constraint("Horizontal", 9))
sketch9.addConstraint(Sketcher.Constraint("Vertical", 10))
sketch9.addConstraint(Sketcher.Constraint("Horizontal", 11))
sketch9.addConstraint(Sketcher.Constraint("Vertical", 12))
sketch9.addConstraint(Sketcher.Constraint("Horizontal", 13))
sketch9.addConstraint(Sketcher.Constraint("Vertical", 14))
sketch9.addConstraint(Sketcher.Constraint("Horizontal", 15))
sketch9.addConstraint(Sketcher.Constraint("Vertical", 16))
sketch9.addConstraint(Sketcher.Constraint("Horizontal", 17))
sketch9.addConstraint(Sketcher.Constraint("Vertical", 18))
sketch9.addConstraint(Sketcher.Constraint("Horizontal", 19))
sketch9.addConstraint(Sketcher.Constraint("Vertical", 20))
sketch9.addConstraint(Sketcher.Constraint("Horizontal", 21))
sketch9.addConstraint(Sketcher.Constraint("Vertical", 22))
sketch9.addConstraint(Sketcher.Constraint("Horizontal", 23))
sketch9.addConstraint(Sketcher.Constraint("Vertical", 24))
sketch9.addConstraint(Sketcher.Constraint("Horizontal", 25))
sketch9.addConstraint(Sketcher.Constraint("Vertical", 26))
sketch9.addConstraint(Sketcher.Constraint("Horizontal", 27))
sketch9.addConstraint(Sketcher.Constraint("Horizontal", 23, 2, 26, 2))
sketch9.addConstraint(Sketcher.Constraint("Equal", 27, 8))
sketch9.addConstraint(Sketcher.Constraint("DistanceX", 1, 1, 1, 2, 263.019562))
sketch9.addConstraint(Sketcher.Constraint("DistanceX", 21, 1, 21, 2, 23.91088))
sketch9.addConstraint(Sketcher.Constraint("DistanceY", 12, 2, 12, 1, 26.567608))
sketch9.addConstraint(Sketcher.Constraint("DistanceY", 16, 2, 16, 1, 23.91085))
sketch9.addConstraint(Sketcher.Constraint("DistanceY", 24, 2, 24, 1, 244.422078))
sketch9.addConstraint(Sketcher.Constraint("DistanceX", 4, 2, -1, 1, 1966.027498))
sketch9.addConstraint(Sketcher.Constraint("DistanceX", 0, 2, 5, 2, 749.206901))
sketch9.addConstraint(Sketcher.Constraint("DistanceY", 8, 2, 1, 2, 170.032799))
sketch9.addConstraint(Sketcher.Constraint("DistanceY", 18, 2, 13, 2, 175.3463))
sketch9.addConstraint(Sketcher.Constraint("DistanceX", 5, 1, 5, 2, 236.451745))
sketch9.addConstraint(Sketcher.Constraint("DistanceX", 9, 1, 9, 2, 257.705927))
sketch9.addConstraint(Sketcher.Constraint("DistanceX", 13, 1, 13, 2, 273.646474))
sketch9.addConstraint(Sketcher.Constraint("DistanceX", 17, 1, 17, 2, 310.841084))
sketch9.addConstraint(Sketcher.Constraint("DistanceX", 25, 1, 25, 2, 29.224396))
sketch9.addConstraint(Sketcher.Constraint("DistanceY", 0, 2, 0, 1, 29.224336))
sketch9.addConstraint(Sketcher.Constraint("DistanceY", 4, 2, 4, 1, 21.254063))
sketch9.addConstraint(Sketcher.Constraint("DistanceY", 20, 2, 20, 1, 249.735624))
sketch9.addConstraint(Sketcher.Constraint("DistanceY", -1, 1, 0, 2, 775.614262))
sketch9.addConstraint(Sketcher.Constraint("DistanceY", -1, 1, 6, 2, 802.18184))
sketch9.addConstraint(Sketcher.Constraint("DistanceX", 9, 2, -1, 1, 1721.60542))
sketch9.addConstraint(Sketcher.Constraint("DistanceX", 12, 2, -1, 1, 1989.938378))
sketch9.addConstraint(Sketcher.Constraint("DistanceY", -1, 1, 14, 2, 438.205481))
sketch9.addConstraint(Sketcher.Constraint("DistanceX", 16, 2, -1, 1, 2013.849258))
sketch9.addConstraint(Sketcher.Constraint("DistanceY", -1, 1, 22, 2, 597.611189))
sketch9.addConstraint(Sketcher.Constraint("DistanceX", 25, 2, -1, 1, 1054.758191))
sketch9.addConstraint(Sketcher.Constraint("DistanceX", 13, 2, 20, 2, 494.157672))
pad8 = body.newObject("PartDesign::Pad", "Pad007")
pad8.Profile = sketch9
pad8.Length = Q("1.32 in")

# Sketch on XZ plane
sketch10 = body.newObject("Sketcher::SketchObject", "Sketch009")
sketch10.AttachmentSupport = (doc.getObject("XZ_Plane"), [""])
sketch10.MapMode = "FlatFace"
sketch10.AttachmentOffset = App.Placement(Vector(0, 0, 24 * 25.4), App.Rotation())
sketch10.addGeometry(Part.LineSegment(Vector(656.727314, 858.017564, 0), Vector(656.727314, 749.690115, 0)), False)
sketch10.addGeometry(Part.LineSegment(Vector(656.727314, 749.690115, 0), Vector(1342.801213, 749.690115, 0)), False)
sketch10.addGeometry(Part.LineSegment(Vector(1342.801213, 749.690115, 0), Vector(1342.801213, 858.017564, 0)), False)
sketch10.addGeometry(Part.LineSegment(Vector(1342.801213, 858.017564, 0), Vector(656.727314, 858.017564, 0)), False)
sketch10.addGeometry(Part.LineSegment(Vector(656.727314, 713.580966, 0), Vector(656.727314, 45.561608, 0)), False)
sketch10.addGeometry(Part.LineSegment(Vector(656.727314, 45.561608, 0), Vector(981.709659, 45.561608, 0)), False)
sketch10.addGeometry(Part.LineSegment(Vector(981.709659, 45.561608, 0), Vector(981.709659, 713.580966, 0)), False)
sketch10.addGeometry(Part.LineSegment(Vector(981.709659, 713.580966, 0), Vector(656.727314, 713.580966, 0)), False)
sketch10.addGeometry(Part.LineSegment(Vector(1017.818809, 713.580966, 0), Vector(1017.818809, 48.140835, 0)), False)
sketch10.addGeometry(Part.LineSegment(Vector(1017.818809, 48.140835, 0), Vector(1342.801213, 48.140835, 0)), False)
sketch10.addGeometry(Part.LineSegment(Vector(1342.801213, 48.140835, 0), Vector(1342.801213, 713.580966, 0)), False)
sketch10.addGeometry(Part.LineSegment(Vector(1342.801213, 713.580966, 0), Vector(1017.818809, 713.580966, 0)), False)
sketch10.addConstraint(Sketcher.Constraint("Coincident", 0, 2, 1, 1))
sketch10.addConstraint(Sketcher.Constraint("Coincident", 1, 2, 2, 1))
sketch10.addConstraint(Sketcher.Constraint("Coincident", 2, 2, 3, 1))
sketch10.addConstraint(Sketcher.Constraint("Coincident", 3, 2, 0, 1))
sketch10.addConstraint(Sketcher.Constraint("Coincident", 4, 2, 5, 1))
sketch10.addConstraint(Sketcher.Constraint("Coincident", 5, 2, 6, 1))
sketch10.addConstraint(Sketcher.Constraint("Coincident", 6, 2, 7, 1))
sketch10.addConstraint(Sketcher.Constraint("Coincident", 7, 2, 4, 1))
sketch10.addConstraint(Sketcher.Constraint("Coincident", 8, 2, 9, 1))
sketch10.addConstraint(Sketcher.Constraint("Coincident", 9, 2, 10, 1))
sketch10.addConstraint(Sketcher.Constraint("Coincident", 10, 2, 11, 1))
sketch10.addConstraint(Sketcher.Constraint("Coincident", 11, 2, 8, 1))
sketch10.addConstraint(Sketcher.Constraint("Vertical", 0))
sketch10.addConstraint(Sketcher.Constraint("Horizontal", 1))
sketch10.addConstraint(Sketcher.Constraint("Vertical", 2))
sketch10.addConstraint(Sketcher.Constraint("Horizontal", 3))
sketch10.addConstraint(Sketcher.Constraint("Vertical", 4))
sketch10.addConstraint(Sketcher.Constraint("Horizontal", 5))
sketch10.addConstraint(Sketcher.Constraint("Vertical", 6))
sketch10.addConstraint(Sketcher.Constraint("Horizontal", 7))
sketch10.addConstraint(Sketcher.Constraint("Vertical", 8))
sketch10.addConstraint(Sketcher.Constraint("Horizontal", 9))
sketch10.addConstraint(Sketcher.Constraint("Vertical", 10))
sketch10.addConstraint(Sketcher.Constraint("Horizontal", 11))
sketch10.addConstraint(Sketcher.Constraint("Horizontal", 7, 2, 10, 2))
sketch10.addConstraint(Sketcher.Constraint("Vertical", 3, 2, 4, 2))
sketch10.addConstraint(Sketcher.Constraint("Vertical", 2, 2, 9, 2))
sketch10.addConstraint(Sketcher.Constraint("DistanceX", 1, 1, 1, 2, 686.073899))
sketch10.addConstraint(Sketcher.Constraint("DistanceY", 0, 2, 0, 1, 108.327448))
sketch10.addConstraint(Sketcher.Constraint("DistanceY", 4, 2, 4, 1, 668.019358))
sketch10.addConstraint(Sketcher.Constraint("DistanceY", 8, 2, 8, 1, 665.440131))
sketch10.addConstraint(Sketcher.Constraint("DistanceX", 5, 1, 5, 2, 324.982345))
sketch10.addConstraint(Sketcher.Constraint("DistanceX", 9, 1, 9, 2, 324.982405))
sketch10.addConstraint(Sketcher.Constraint("DistanceX", -1, 1, 5, 2, 981.709659))
sketch10.addConstraint(Sketcher.Constraint("DistanceY", 6, 2, 0, 2, 36.109149))
sketch10.addConstraint(Sketcher.Constraint("DistanceY", -1, 1, 0, 2, 749.690115))
pad9 = body.newObject("PartDesign::Pad", "Pad008")
pad9.Profile = sketch10
pad9.Length = Q("0.96 in")

# Sketch on XZ plane
sketch11 = body.newObject("Sketcher::SketchObject", "Sketch010")
sketch11.AttachmentSupport = (doc.getObject("XZ_Plane"), [""])
sketch11.MapMode = "FlatFace"
sketch11.AttachmentOffset = App.Placement(Vector(0, 0, 24 * 25.4), App.Rotation())
sketch11.addGeometry(Part.LineSegment(Vector(705.732584, 819.329143, 0), Vector(705.732584, 793.536901, 0)), False)
sketch11.addGeometry(Part.LineSegment(Vector(705.732584, 793.536901, 0), Vector(886.278391, 793.536901, 0)), False)
sketch11.addGeometry(Part.LineSegment(Vector(886.278391, 793.536901, 0), Vector(886.278391, 819.329143, 0)), False)
sketch11.addGeometry(Part.LineSegment(Vector(886.278391, 819.329143, 0), Vector(705.732584, 819.329143, 0)), False)
sketch11.addGeometry(Part.LineSegment(Vector(1064.244866, 819.329143, 0), Vector(1064.244866, 793.536901, 0)), False)
sketch11.addGeometry(Part.LineSegment(Vector(1064.244866, 793.536901, 0), Vector(1265.42449, 793.536901, 0)), False)
sketch11.addGeometry(Part.LineSegment(Vector(1265.42449, 793.536901, 0), Vector(1265.42449, 819.329143, 0)), False)
sketch11.addGeometry(Part.LineSegment(Vector(1265.42449, 819.329143, 0), Vector(1064.244866, 819.329143, 0)), False)
sketch11.addGeometry(Part.LineSegment(Vector(914.649844, 672.313333, 0), Vector(914.649844, 398.91547, 0)), False)
sketch11.addGeometry(Part.LineSegment(Vector(914.649844, 398.91547, 0), Vector(932.704389, 398.91547, 0)), False)
sketch11.addGeometry(Part.LineSegment(Vector(932.704389, 398.91547, 0), Vector(932.704389, 672.313333, 0)), False)
sketch11.addGeometry(Part.LineSegment(Vector(932.704389, 672.313333, 0), Vector(914.649844, 672.313333, 0)), False)
sketch11.addGeometry(Part.LineSegment(Vector(1041.031837, 672.313333, 0), Vector(1041.031837, 401.494682, 0)), False)
sketch11.addGeometry(Part.LineSegment(Vector(1041.031837, 401.494682, 0), Vector(1056.50723, 401.494682, 0)), False)
sketch11.addGeometry(Part.LineSegment(Vector(1056.50723, 401.494682, 0), Vector(1056.50723, 672.313333, 0)), False)
sketch11.addGeometry(Part.LineSegment(Vector(1056.50723, 672.313333, 0), Vector(1041.031837, 672.313333, 0)), False)
sketch11.addConstraint(Sketcher.Constraint("Coincident", 0, 2, 1, 1))
sketch11.addConstraint(Sketcher.Constraint("Coincident", 1, 2, 2, 1))
sketch11.addConstraint(Sketcher.Constraint("Coincident", 2, 2, 3, 1))
sketch11.addConstraint(Sketcher.Constraint("Coincident", 3, 2, 0, 1))
sketch11.addConstraint(Sketcher.Constraint("Coincident", 4, 2, 5, 1))
sketch11.addConstraint(Sketcher.Constraint("Coincident", 5, 2, 6, 1))
sketch11.addConstraint(Sketcher.Constraint("Coincident", 6, 2, 7, 1))
sketch11.addConstraint(Sketcher.Constraint("Coincident", 7, 2, 4, 1))
sketch11.addConstraint(Sketcher.Constraint("Coincident", 8, 2, 9, 1))
sketch11.addConstraint(Sketcher.Constraint("Coincident", 9, 2, 10, 1))
sketch11.addConstraint(Sketcher.Constraint("Coincident", 10, 2, 11, 1))
sketch11.addConstraint(Sketcher.Constraint("Coincident", 11, 2, 8, 1))
sketch11.addConstraint(Sketcher.Constraint("Coincident", 12, 2, 13, 1))
sketch11.addConstraint(Sketcher.Constraint("Coincident", 13, 2, 14, 1))
sketch11.addConstraint(Sketcher.Constraint("Coincident", 14, 2, 15, 1))
sketch11.addConstraint(Sketcher.Constraint("Coincident", 15, 2, 12, 1))
sketch11.addConstraint(Sketcher.Constraint("Vertical", 0))
sketch11.addConstraint(Sketcher.Constraint("Horizontal", 1))
sketch11.addConstraint(Sketcher.Constraint("Vertical", 2))
sketch11.addConstraint(Sketcher.Constraint("Horizontal", 3))
sketch11.addConstraint(Sketcher.Constraint("Vertical", 4))
sketch11.addConstraint(Sketcher.Constraint("Horizontal", 5))
sketch11.addConstraint(Sketcher.Constraint("Vertical", 6))
sketch11.addConstraint(Sketcher.Constraint("Horizontal", 7))
sketch11.addConstraint(Sketcher.Constraint("Vertical", 8))
sketch11.addConstraint(Sketcher.Constraint("Horizontal", 9))
sketch11.addConstraint(Sketcher.Constraint("Vertical", 10))
sketch11.addConstraint(Sketcher.Constraint("Horizontal", 11))
sketch11.addConstraint(Sketcher.Constraint("Vertical", 12))
sketch11.addConstraint(Sketcher.Constraint("Horizontal", 13))
sketch11.addConstraint(Sketcher.Constraint("Vertical", 14))
sketch11.addConstraint(Sketcher.Constraint("Horizontal", 15))
sketch11.addConstraint(Sketcher.Constraint("Horizontal", 1, 2, 4, 2))
sketch11.addConstraint(Sketcher.Constraint("Horizontal", 3, 2, 6, 2))
sketch11.addConstraint(Sketcher.Constraint("Horizontal", 11, 2, 14, 2))
sketch11.addConstraint(Sketcher.Constraint("DistanceY", 0, 2, 0, 1, 25.792241))
sketch11.addConstraint(Sketcher.Constraint("DistanceY", 12, 2, 12, 1, 270.818651))
sketch11.addConstraint(Sketcher.Constraint("DistanceY", -1, 1, 0, 2, 793.536901))
sketch11.addConstraint(Sketcher.Constraint("DistanceX", 1, 2, 5, 2, 379.146099))
sketch11.addConstraint(Sketcher.Constraint("DistanceX", 1, 2, 9, 2, 46.425998))
sketch11.addConstraint(Sketcher.Constraint("DistanceX", 1, 1, 1, 2, 180.545807))
sketch11.addConstraint(Sketcher.Constraint("DistanceX", 5, 1, 5, 2, 201.179624))
sketch11.addConstraint(Sketcher.Constraint("DistanceX", 9, 1, 9, 2, 18.054545))
sketch11.addConstraint(Sketcher.Constraint("DistanceX", 13, 1, 13, 2, 15.475392))
sketch11.addConstraint(Sketcher.Constraint("DistanceY", 8, 2, 8, 1, 273.397863))
sketch11.addConstraint(Sketcher.Constraint("DistanceX", -1, 1, 1, 2, 886.278391))
sketch11.addConstraint(Sketcher.Constraint("DistanceY", -1, 1, 8, 2, 398.91547))
sketch11.addConstraint(Sketcher.Constraint("DistanceX", -1, 1, 13, 2, 1056.50723))
pad10 = body.newObject("PartDesign::Pad", "Pad009")
pad10.Profile = sketch11
pad10.Length = Q("1.32 in")

doc.recompute()
